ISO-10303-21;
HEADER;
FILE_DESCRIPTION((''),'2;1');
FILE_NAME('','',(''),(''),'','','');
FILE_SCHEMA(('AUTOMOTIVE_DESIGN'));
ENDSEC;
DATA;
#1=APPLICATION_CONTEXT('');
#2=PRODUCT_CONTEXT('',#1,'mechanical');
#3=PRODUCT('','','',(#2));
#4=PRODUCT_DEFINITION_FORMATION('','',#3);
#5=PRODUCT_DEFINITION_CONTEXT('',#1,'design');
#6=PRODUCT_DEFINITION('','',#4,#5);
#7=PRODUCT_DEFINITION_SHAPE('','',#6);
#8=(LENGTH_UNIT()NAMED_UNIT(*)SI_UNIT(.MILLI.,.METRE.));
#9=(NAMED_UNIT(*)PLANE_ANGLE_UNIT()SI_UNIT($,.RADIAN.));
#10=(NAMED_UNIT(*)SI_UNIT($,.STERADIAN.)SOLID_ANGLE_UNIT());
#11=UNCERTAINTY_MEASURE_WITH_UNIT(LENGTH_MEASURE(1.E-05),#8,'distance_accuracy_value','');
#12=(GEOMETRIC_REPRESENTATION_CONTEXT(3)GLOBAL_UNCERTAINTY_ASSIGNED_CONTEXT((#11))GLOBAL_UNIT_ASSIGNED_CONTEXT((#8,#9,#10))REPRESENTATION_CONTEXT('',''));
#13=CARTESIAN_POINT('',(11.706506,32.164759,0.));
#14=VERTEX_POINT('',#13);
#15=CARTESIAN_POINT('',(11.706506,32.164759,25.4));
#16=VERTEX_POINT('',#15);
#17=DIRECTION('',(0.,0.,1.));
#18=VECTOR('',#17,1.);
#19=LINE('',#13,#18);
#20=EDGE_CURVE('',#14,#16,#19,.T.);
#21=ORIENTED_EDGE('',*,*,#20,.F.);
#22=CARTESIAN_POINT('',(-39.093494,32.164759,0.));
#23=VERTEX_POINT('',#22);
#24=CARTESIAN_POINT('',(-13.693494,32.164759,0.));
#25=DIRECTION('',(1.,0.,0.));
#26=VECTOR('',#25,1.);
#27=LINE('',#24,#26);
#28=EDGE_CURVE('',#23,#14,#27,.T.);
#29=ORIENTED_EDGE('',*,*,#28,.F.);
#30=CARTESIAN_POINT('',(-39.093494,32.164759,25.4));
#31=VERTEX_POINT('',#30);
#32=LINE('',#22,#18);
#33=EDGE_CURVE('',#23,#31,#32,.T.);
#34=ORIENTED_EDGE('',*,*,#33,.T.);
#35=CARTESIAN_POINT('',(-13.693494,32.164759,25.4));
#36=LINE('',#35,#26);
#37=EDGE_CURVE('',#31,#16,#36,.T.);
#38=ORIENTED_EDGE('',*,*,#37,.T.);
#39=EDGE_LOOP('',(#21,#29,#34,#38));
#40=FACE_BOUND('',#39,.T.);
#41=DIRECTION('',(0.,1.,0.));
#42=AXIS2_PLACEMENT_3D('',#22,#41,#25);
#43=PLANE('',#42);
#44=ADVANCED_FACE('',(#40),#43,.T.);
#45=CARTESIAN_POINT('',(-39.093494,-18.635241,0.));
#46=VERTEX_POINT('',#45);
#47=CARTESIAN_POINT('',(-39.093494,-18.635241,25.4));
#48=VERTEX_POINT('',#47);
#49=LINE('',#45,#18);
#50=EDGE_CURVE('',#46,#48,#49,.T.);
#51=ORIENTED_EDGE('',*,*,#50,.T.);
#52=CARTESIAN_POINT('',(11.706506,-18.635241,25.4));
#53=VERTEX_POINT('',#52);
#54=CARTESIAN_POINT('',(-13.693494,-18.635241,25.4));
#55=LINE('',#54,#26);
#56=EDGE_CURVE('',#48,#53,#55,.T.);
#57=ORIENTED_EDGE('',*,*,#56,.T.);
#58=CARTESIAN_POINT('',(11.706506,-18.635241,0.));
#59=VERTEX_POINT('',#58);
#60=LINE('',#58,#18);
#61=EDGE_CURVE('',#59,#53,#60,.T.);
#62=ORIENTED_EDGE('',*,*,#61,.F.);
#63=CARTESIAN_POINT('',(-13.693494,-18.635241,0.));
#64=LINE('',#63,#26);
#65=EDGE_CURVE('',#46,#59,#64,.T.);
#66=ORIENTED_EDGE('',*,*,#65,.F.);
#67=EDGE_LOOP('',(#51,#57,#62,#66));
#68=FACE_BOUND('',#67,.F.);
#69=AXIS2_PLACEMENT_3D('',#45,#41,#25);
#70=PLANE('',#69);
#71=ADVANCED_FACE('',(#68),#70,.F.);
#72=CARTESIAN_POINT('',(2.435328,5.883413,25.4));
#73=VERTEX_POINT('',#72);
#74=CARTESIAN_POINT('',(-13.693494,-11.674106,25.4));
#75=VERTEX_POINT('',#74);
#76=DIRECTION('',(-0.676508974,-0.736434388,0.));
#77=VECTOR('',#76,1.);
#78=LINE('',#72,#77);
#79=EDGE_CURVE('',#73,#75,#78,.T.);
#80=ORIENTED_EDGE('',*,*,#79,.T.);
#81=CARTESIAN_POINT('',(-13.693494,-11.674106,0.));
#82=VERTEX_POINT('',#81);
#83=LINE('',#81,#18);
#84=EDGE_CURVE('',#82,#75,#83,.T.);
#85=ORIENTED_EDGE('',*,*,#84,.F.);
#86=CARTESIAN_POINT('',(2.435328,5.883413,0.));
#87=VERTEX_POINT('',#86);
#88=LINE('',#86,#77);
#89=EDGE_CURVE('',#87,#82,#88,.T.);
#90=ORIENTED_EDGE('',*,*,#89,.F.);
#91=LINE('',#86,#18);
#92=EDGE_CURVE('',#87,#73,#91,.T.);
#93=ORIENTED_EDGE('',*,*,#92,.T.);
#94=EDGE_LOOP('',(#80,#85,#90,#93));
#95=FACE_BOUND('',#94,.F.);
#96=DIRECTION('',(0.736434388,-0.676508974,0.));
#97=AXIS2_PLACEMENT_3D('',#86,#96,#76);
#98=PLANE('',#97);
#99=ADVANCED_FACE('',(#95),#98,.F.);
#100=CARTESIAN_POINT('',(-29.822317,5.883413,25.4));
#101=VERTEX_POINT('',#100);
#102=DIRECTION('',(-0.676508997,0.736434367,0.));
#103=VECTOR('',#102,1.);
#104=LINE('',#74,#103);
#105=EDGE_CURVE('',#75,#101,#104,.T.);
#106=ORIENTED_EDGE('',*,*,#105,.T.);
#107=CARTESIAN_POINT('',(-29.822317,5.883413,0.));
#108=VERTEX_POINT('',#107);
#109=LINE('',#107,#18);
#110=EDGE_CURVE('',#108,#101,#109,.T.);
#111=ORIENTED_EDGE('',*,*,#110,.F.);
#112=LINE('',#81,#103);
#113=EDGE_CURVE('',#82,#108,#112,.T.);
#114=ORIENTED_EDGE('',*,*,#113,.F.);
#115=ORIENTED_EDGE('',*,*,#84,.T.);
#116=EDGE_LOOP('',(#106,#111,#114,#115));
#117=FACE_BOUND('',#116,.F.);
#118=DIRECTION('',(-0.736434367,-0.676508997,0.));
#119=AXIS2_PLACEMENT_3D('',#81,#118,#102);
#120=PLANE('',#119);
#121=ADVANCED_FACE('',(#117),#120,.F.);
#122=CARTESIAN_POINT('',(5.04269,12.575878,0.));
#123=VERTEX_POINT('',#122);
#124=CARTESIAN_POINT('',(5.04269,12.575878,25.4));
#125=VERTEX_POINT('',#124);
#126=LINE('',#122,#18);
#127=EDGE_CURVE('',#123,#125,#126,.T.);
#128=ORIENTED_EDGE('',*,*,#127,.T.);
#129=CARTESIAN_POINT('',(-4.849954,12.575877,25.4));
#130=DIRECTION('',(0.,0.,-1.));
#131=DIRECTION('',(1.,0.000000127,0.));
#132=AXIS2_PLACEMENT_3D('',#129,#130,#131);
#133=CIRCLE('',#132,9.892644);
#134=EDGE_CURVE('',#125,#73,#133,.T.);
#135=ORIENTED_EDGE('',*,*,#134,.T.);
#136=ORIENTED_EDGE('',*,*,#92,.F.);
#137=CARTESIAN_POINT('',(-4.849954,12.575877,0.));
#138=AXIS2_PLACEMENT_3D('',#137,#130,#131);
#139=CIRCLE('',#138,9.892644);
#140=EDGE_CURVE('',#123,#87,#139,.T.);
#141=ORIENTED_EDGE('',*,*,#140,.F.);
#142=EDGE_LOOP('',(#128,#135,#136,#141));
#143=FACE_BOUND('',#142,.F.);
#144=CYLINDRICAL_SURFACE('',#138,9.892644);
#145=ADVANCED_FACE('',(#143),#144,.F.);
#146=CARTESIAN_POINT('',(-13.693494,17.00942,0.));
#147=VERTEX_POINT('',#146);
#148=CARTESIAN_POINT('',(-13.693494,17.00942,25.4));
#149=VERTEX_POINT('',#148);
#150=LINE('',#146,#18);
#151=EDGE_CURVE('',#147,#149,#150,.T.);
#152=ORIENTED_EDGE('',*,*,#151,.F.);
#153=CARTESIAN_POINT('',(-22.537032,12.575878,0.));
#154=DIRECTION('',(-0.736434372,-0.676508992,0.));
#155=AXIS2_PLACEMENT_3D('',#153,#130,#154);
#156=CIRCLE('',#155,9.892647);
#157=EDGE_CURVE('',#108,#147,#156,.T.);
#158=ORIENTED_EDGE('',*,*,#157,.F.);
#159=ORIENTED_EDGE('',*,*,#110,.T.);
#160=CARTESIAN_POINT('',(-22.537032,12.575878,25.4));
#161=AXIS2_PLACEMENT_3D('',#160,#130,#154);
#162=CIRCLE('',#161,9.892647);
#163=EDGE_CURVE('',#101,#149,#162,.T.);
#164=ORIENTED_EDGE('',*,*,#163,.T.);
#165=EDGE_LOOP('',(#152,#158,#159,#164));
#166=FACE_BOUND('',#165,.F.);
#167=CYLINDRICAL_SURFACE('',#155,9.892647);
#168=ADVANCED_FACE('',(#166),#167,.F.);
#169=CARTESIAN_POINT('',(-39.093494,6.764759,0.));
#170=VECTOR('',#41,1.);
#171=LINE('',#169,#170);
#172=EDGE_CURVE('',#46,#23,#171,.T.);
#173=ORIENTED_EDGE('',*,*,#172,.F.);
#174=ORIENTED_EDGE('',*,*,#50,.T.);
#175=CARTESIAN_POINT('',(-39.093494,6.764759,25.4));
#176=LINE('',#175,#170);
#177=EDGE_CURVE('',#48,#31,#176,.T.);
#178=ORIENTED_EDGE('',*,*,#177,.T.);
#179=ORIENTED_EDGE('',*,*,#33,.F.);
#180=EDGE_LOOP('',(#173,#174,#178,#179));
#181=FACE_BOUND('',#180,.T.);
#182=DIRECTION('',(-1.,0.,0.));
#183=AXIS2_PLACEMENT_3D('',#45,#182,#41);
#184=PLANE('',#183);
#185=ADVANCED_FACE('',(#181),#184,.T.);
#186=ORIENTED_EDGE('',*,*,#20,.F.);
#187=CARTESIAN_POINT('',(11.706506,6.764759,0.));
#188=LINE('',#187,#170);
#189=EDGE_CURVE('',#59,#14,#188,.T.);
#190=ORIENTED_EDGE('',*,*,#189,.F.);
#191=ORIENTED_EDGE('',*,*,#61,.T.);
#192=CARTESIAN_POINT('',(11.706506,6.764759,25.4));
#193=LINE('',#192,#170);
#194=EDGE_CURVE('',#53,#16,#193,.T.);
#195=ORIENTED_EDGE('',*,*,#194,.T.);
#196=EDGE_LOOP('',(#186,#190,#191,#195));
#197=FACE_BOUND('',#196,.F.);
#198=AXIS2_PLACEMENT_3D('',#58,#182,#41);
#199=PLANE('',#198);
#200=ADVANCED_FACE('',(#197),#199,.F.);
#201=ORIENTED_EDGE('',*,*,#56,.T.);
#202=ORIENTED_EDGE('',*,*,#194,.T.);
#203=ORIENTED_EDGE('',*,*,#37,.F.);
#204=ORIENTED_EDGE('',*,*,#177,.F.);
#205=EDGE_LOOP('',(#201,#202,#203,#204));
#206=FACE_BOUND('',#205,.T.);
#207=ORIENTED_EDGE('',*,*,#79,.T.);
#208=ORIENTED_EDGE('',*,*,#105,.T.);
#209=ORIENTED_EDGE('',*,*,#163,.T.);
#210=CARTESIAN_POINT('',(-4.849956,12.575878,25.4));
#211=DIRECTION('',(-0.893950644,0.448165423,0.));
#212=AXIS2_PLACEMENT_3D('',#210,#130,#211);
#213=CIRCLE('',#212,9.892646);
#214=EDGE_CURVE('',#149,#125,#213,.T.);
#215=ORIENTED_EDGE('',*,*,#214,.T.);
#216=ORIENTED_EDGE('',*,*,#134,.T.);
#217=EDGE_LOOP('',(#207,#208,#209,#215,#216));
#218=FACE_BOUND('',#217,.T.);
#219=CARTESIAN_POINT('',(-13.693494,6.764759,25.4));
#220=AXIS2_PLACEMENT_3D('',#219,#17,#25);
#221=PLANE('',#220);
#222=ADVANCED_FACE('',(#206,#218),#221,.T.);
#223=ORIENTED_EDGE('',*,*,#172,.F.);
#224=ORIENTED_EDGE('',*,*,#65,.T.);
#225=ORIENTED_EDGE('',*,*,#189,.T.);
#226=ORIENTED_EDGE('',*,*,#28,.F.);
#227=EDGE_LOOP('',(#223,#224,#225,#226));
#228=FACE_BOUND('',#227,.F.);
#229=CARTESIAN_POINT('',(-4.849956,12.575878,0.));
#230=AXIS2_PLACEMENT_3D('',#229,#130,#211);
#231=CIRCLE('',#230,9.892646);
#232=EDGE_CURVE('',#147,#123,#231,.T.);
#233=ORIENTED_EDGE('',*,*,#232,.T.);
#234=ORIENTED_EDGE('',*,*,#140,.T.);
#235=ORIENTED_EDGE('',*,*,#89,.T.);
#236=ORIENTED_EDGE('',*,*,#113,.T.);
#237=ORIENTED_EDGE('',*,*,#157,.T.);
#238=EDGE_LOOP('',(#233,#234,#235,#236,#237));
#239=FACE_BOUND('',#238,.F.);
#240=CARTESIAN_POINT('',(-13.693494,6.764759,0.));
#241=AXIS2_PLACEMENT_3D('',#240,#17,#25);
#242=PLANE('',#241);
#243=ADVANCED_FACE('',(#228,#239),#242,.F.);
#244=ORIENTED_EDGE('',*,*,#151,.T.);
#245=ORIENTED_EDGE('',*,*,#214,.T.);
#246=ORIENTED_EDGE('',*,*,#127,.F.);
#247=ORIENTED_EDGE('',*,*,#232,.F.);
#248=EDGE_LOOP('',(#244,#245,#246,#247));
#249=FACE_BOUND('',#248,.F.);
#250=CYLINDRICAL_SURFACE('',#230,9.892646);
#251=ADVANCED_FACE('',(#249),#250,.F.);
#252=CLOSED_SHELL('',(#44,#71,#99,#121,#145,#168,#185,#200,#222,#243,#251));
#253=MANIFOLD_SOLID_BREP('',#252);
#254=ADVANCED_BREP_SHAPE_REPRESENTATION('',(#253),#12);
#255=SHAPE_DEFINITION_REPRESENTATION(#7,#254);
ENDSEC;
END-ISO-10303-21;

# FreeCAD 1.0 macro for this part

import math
import FreeCAD as App
import Part
import Sketcher
from FreeCAD import Vector
Q = App.Units.Quantity


def add_polygon(sketch, points):
    """Adds a closed chain of lines whose ends are joined by coincident constraints."""
    first, n = sketch.GeometryCount, len(points)
    for a, b in zip(points, points[1:] + points[:1]):
        sketch.addGeometry(Part.LineSegment(App.Vector(*a, 0), App.Vector(*b, 0)), False)
    for i in range(n):
        sketch.addConstraint(Sketcher.Constraint("Coincident", first + i, 2, first + (i + 1) % n, 1))

doc = App.newDocument("Part")
body = doc.addObject("PartDesign::Body", "Body")

sketch1 = body.newObject("Sketcher::SketchObject", "Sketch")
sketch1.AttachmentSupport = (doc.getObject("XY_Plane"), [""])
sketch1.MapMode = "FlatFace"
add_polygon(sketch1, [(-39, 32), (-39, -19), (12, -19), (12, 32)])
sketch1.addGeometry(Part.LineSegment(Vector(-14, -12, 0), Vector(-30, 6, 0)), False)
sketch1.addGeometry(Part.ArcOfCircle(Part.Circle(Vector(-23, 13, 0), Vector(0, 0, 1), 10), math.radians(27), math.radians(223)), False)
sketch1.addGeometry(Part.ArcOfCircle(Part.Circle(Vector(-5, 13, 0), Vector(0, 0, 1), 10), math.radians(0), math.radians(153)), False)
sketch1.addGeometry(Part.ArcOfCircle(Part.Circle(Vector(-5, 13, 0), Vector(0, 0, 1), 10), math.radians(-43), math.radians(0)), False)
sketch1.addGeometry(Part.LineSegment(Vector(2, 6, 0), Vector(-14, -12, 0)), False)
sketch1.addConstraint(Sketcher.Constraint("Tangent", 4, 2, 5, 2))
sketch1.addConstraint(Sketcher.Constraint("Coincident", 5, 1, 6, 2))
sketch1.addConstraint(Sketcher.Constraint("Tangent", 6, 1, 7, 2))
sketch1.addConstraint(Sketcher.Constraint("Tangent", 7, 1, 8, 1))
sketch1.addConstraint(Sketcher.Constraint("Coincident", 8, 2, 4, 1))
sketch1.addConstraint(Sketcher.Constraint("Vertical", 0))
sketch1.addConstraint(Sketcher.Constraint("Horizontal", 1))
sketch1.addConstraint(Sketcher.Constraint("Vertical", 2))
sketch1.addConstraint(Sketcher.Constraint("Horizontal", 3))
sketch1.addConstraint(Sketcher.Constraint("Equal", 5, 6))
sketch1.addConstraint(Sketcher.Constraint("Horizontal", 5, 3, 6, 3))
sketch1.addConstraint(Sketcher.Constraint("Horizontal", 7, 3, 6, 1))
sketch1.addConstraint(Sketcher.Constraint("Horizontal", 4, 2, 7, 1))
sketch1.addConstraint(Sketcher.Constraint("Vertical", 5, 1, 8, 2))
sketch1.addConstraint(Sketcher.Constraint("Equal", 3, 0))
sketch1.addConstraint(Sketcher.Constraint("DistanceX", 1, 1, 1, 2, Q("2 in")))
sketch1.addConstraint(Sketcher.Constraint("DistanceX", 5, 1, 2, 2, Q("1 in")))
sketch1.addConstraint(Sketcher.Constraint("Radius", 5, Q("9.892647 mm")))
sketch1.addConstraint(Sketcher.Constraint("DistanceX", 5, 3, -1, 1, Q("22.537032 mm")))
sketch1.addConstraint(Sketcher.Constraint("DistanceY", 0, 2, -1, 1, Q("18.635241 mm")))
sketch1.addConstraint(Sketcher.Constraint("DistanceY", -1, 1, 5, 1, Q("17.00942 mm")))
sketch1.addConstraint(Sketcher.Constraint("DistanceX", -1, 1, 6, 1, Q("5.04269 mm")))
sketch1.addConstraint(Sketcher.Constraint("DistanceX", 4, 2, 6, 3, Q("24.972361 mm")))
pad1 = body.newObject("PartDesign::Pad", "Pad")
pad1.Profile = sketch1
pad1.Length = Q("1 in")

doc.recompute()
